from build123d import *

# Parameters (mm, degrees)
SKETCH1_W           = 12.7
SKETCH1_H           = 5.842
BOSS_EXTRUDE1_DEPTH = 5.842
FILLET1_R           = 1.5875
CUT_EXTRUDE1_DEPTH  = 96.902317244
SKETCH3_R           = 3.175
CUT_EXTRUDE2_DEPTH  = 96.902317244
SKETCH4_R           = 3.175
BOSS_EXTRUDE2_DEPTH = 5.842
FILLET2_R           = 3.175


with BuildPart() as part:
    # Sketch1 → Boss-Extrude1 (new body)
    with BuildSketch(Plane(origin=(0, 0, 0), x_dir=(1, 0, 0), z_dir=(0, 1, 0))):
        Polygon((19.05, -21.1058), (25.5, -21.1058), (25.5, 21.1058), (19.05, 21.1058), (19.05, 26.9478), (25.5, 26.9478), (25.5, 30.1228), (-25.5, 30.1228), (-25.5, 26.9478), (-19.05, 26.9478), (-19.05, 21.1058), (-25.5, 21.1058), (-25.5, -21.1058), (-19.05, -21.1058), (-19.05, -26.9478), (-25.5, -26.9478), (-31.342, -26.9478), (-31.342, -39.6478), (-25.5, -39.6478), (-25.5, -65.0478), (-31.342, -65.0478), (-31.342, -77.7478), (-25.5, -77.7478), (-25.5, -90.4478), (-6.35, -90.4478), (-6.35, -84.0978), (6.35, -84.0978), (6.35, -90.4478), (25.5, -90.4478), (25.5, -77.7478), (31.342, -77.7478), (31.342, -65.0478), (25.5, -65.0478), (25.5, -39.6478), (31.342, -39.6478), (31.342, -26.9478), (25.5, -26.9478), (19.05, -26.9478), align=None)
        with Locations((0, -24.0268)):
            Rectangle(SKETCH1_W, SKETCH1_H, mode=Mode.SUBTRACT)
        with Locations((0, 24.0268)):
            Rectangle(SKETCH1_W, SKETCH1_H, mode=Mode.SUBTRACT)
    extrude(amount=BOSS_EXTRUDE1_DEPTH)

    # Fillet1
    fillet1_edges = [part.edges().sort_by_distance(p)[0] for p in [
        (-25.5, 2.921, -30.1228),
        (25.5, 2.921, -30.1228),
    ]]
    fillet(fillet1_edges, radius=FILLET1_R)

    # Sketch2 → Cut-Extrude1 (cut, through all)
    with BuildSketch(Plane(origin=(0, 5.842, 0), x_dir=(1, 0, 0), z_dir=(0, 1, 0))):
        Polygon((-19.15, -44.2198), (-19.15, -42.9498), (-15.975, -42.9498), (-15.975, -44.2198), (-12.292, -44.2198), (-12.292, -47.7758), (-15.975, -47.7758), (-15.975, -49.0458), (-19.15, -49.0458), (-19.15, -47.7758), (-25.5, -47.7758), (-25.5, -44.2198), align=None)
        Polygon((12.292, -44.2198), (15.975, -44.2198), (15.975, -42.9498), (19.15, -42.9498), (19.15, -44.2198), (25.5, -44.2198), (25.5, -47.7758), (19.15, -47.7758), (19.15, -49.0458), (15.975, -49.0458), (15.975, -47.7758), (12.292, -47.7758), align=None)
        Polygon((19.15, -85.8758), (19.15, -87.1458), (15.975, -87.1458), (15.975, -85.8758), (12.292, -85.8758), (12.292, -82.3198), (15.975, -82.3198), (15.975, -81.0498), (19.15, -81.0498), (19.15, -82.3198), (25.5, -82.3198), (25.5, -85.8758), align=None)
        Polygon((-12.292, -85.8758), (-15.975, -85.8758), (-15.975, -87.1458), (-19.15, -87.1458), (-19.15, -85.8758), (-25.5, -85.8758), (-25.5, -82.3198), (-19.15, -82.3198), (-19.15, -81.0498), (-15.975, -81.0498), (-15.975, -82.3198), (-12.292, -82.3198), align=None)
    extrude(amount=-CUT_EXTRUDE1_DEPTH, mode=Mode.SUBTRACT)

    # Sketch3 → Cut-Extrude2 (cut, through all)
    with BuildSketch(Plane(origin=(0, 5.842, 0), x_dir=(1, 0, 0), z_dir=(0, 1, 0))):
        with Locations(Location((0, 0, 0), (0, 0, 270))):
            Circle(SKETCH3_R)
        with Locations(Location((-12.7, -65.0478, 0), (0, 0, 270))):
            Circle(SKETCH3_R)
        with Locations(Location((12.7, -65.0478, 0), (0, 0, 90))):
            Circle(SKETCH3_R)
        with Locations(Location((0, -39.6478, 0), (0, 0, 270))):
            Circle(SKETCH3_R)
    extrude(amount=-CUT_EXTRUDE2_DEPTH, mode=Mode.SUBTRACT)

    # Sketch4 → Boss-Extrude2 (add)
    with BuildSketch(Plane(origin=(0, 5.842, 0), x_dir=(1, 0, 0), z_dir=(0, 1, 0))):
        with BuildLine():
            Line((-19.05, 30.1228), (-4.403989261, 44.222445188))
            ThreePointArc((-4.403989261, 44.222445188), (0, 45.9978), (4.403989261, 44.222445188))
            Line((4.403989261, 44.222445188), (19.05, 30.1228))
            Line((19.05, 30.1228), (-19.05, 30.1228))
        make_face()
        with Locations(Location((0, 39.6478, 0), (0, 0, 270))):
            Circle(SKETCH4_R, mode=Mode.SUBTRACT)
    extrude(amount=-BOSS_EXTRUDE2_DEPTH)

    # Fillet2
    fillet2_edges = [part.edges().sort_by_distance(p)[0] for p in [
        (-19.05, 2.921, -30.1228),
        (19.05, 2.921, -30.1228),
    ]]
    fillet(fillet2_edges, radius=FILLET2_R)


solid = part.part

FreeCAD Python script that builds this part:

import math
import FreeCAD as App
import Part
import Sketcher
from FreeCAD import Vector
Q = App.Units.Quantity


def edges_at(feature, points):
    """Names of the edges that pass closest to the given points."""
    edges = feature.Shape.Edges
    near = lambda p: min(range(len(edges)), key=lambda i: edges[i].distToShape(Part.Vertex(*p))[0])
    return sorted({f"Edge{near(p) + 1}" for p in points})


def add_polygon(sketch, points):
    """Adds a closed chain of lines whose ends are joined by coincident constraints."""
    first, n = sketch.GeometryCount, len(points)
    for a, b in zip(points, points[1:] + points[:1]):
        sketch.addGeometry(Part.LineSegment(App.Vector(*a, 0), App.Vector(*b, 0)), False)
    for i in range(n):
        sketch.addConstraint(Sketcher.Constraint("Coincident", first + i, 2, first + (i + 1) % n, 1))

doc = App.newDocument("Part")
params = doc.addObject("Spreadsheet::Sheet", "Params")
for row, (alias, value) in enumerate([
    ("sketch1_height", "1 in"),
    ("sketch1_width", "0.5 in"),
    ("sketch1_width2", "0.23 in"),
    ("sketch1_height2", "0.25 in"),
    ("sketch1_height3", "0.125 in"),
    ("pad1_length", "0.23 in"),
    ("fillet_radius", "0.0625 in"),
    ("sketch2_width", "0.25 in"),
    ("sketch2_height", "0.05 in"),
    ("sketch2_height2", "0.14 in"),
    ("sketch2_width2", "0.125 in"),
    ("sketch2_width3", "0.145 in"),
    ("sketch3_diameter", "0.25 in"),
    ("sketch4_diameter", "0.25 in"),
    ("sketch4_radius", "0.25 in"),
    ("sketch4_width", "1.5 in"),
    ("pad2_length", "0.23 in"),
    ("fillet2_radius", "0.125 in"),
], start=1):
    params.set(f"A{row}", alias)
    params.set(f"B{row}", "=" + value)
    params.setAlias(f"B{row}", alias)

body = doc.addObject("PartDesign::Body", "Body")

# Sketch on XZ plane
sketch1 = doc.addObject("Sketcher::SketchObject", "Sketch")
body.addObject(sketch1)
sketch1.AttachmentSupport = (doc.XZ_Plane, [""])
sketch1.MapMode = "FlatFace"
add_polygon(sketch1, [(19.1, 21.1), (25.5, 21.1), (25.5, -21.1), (19.1, -21.1), (19.1, -26.9), (25.5, -26.9), (25.5, -30.1), (-25.5, -30.1), (-25.5, -26.9), (-19.1, -26.9), (-19.1, -21.1), (-25.5, -21.1), (-25.5, 21.1), (-19.1, 21.1), (-19.1, 26.9), (-31.3, 26.9), (-31.3, 39.6), (-25.5, 39.6), (-25.5, 65), (-31.3, 65), (-31.3, 77.7), (-25.5, 77.7), (-25.5, 90.4), (-6.3, 90.4), (-6.3, 84.1), (6.3, 84.1), (6.3, 90.4), (25.5, 90.4), (25.5, 77.7), (31.3, 77.7), (31.3, 65), (25.5, 65), (25.5, 39.6), (31.3, 39.6), (31.3, 26.9), (19.1, 26.9)])  # lines 0-35
add_polygon(sketch1, [(6.3, 26.9), (-6.3, 26.9), (-6.3, 21.1), (6.3, 21.1)])  # lines 36-39
add_polygon(sketch1, [(6.3, -21.1), (-6.3, -21.1), (-6.3, -26.9), (6.3, -26.9)])  # lines 40-43
sketch1.addConstraint([
    Sketcher.Constraint("Horizontal", 0),
    Sketcher.Constraint("Vertical", 1),
    Sketcher.Constraint("Horizontal", 2),
    Sketcher.Constraint("Vertical", 3),
    Sketcher.Constraint("Horizontal", 4),
    Sketcher.Constraint("Vertical", 5),
    Sketcher.Constraint("Horizontal", 6),
    Sketcher.Constraint("Vertical", 7),
    Sketcher.Constraint("Horizontal", 8),
    Sketcher.Constraint("Vertical", 9),
    Sketcher.Constraint("Horizontal", 10),
    Sketcher.Constraint("Vertical", 11),
    Sketcher.Constraint("Horizontal", 12),
    Sketcher.Constraint("Vertical", 13),
    Sketcher.Constraint("Horizontal", 14),
    Sketcher.Constraint("Vertical", 15),
    Sketcher.Constraint("Horizontal", 16),
    Sketcher.Constraint("Vertical", 17),
    Sketcher.Constraint("Horizontal", 18),
    Sketcher.Constraint("Vertical", 19),
    Sketcher.Constraint("Horizontal", 20),
    Sketcher.Constraint("Vertical", 21),
    Sketcher.Constraint("Horizontal", 22),
    Sketcher.Constraint("Vertical", 23),
    Sketcher.Constraint("Horizontal", 24),
    Sketcher.Constraint("Vertical", 25),
    Sketcher.Constraint("Horizontal", 26),
    Sketcher.Constraint("Vertical", 27),
    Sketcher.Constraint("Horizontal", 28),
    Sketcher.Constraint("Vertical", 29),
    Sketcher.Constraint("Horizontal", 30),
    Sketcher.Constraint("Vertical", 31),
    Sketcher.Constraint("Horizontal", 32),
    Sketcher.Constraint("Vertical", 33),
    Sketcher.Constraint("Horizontal", 34),
    Sketcher.Constraint("Vertical", 35),
    Sketcher.Constraint("Horizontal", 36),
    Sketcher.Constraint("Vertical", 37),
    Sketcher.Constraint("Horizontal", 38),
    Sketcher.Constraint("Vertical", 39),
    Sketcher.Constraint("Horizontal", 40),
    Sketcher.Constraint("Vertical", 41),
    Sketcher.Constraint("Horizontal", 42),
    Sketcher.Constraint("Vertical", 43),
    Sketcher.Constraint("Symmetric", 0, 2, 10, 2, -1, 1),
    Sketcher.Constraint("Symmetric", 2, 2, 12, 2, -1, 1),
    Sketcher.Constraint("Symmetric", 8, 2, 34, 2, -1, 1),
    Sketcher.Constraint("Symmetric", 38, 2, 40, 2, -1, 1),
    Sketcher.Constraint("Symmetric", 36, 2, 42, 2, -1, 1),
    Sketcher.Constraint("Symmetric", 4, 2, 7, 2, -2),
    Sketcher.Constraint("Symmetric", 2, 2, 9, 2, -2),
    Sketcher.Constraint("Symmetric", 22, 2, 25, 2, -2),
    Sketcher.Constraint("Symmetric", 20, 2, 27, 2, -2),
    Sketcher.Constraint("Symmetric", 18, 2, 29, 2, -2),
    Sketcher.Constraint("Symmetric", 16, 2, 31, 2, -2),
    Sketcher.Constraint("Symmetric", 14, 2, 33, 2, -2),
    Sketcher.Constraint("Horizontal", 34, 2, 36, 2),
    Sketcher.Constraint("Horizontal", 35, 2, 37, 2),
    Sketcher.Constraint("Vertical", 1, 2, 4, 2),
    Sketcher.Constraint("Vertical", 11, 2, 16, 2),
    Sketcher.Constraint("Vertical", 15, 2, 18, 2),
    Sketcher.Constraint("Vertical", 17, 2, 20, 2),
    Sketcher.Constraint("Vertical", 23, 2, 36, 2),
    Sketcher.Constraint("Vertical", 25, 2, 38, 2),
    Sketcher.Constraint("Equal", 32, 3),
    Sketcher.Constraint("Equal", 42, 15),
    Sketcher.Constraint("Equal", 15, 19),
    Sketcher.Constraint("Equal", 19, 21),
    Sketcher.Constraint("DistanceY", 17, 1, 17, 2, Q("1 in")),
    Sketcher.Constraint("DistanceX", 24, 1, 24, 2, Q("0.5 in")),
    Sketcher.Constraint("DistanceX", 37, 2, 35, 2, Q("1 in")),
    Sketcher.Constraint("DistanceX", 16, 1, 16, 2, Q("0.23 in")),
    Sketcher.Constraint("DistanceY", 23, 2, 23, 1, Q("0.25 in")),
    Sketcher.Constraint("DistanceY", 5, 2, 5, 1, Q("0.125 in")),
    Sketcher.Constraint("DistanceX", 0, 1, 0, 2, Q("6.45 mm")),
    Sketcher.Constraint("DistanceY", 1, 2, 1, 1, Q("42.2116 mm")),
])
sketch1.setExpression("Constraints[112]", "Params.sketch1_height")
sketch1.setExpression("Constraints[113]", "Params.sketch1_width")
sketch1.setExpression("Constraints[115]", "Params.sketch1_width2")
sketch1.setExpression("Constraints[116]", "Params.sketch1_height2")
sketch1.setExpression("Constraints[117]", "Params.sketch1_height3")
pad1 = doc.addObject("PartDesign::Pad", "Pad")
body.addObject(pad1)
pad1.Profile = sketch1
pad1.setExpression("Length", "Params.pad1_length")
pad1.Reversed = True
doc.recompute()

fillet = doc.addObject("PartDesign::Fillet", "Fillet")
body.addObject(fillet)
fillet.Base = (pad1, edges_at(pad1, [(-25.5, 2.921, -30.123), (25.5, 2.921, -30.123)]))
fillet.setExpression("Radius", "Params.fillet_radius")

# Sketch on XZ plane
sketch2 = doc.addObject("Sketcher::SketchObject", "Sketch001")
body.addObject(sketch2)
sketch2.AttachmentSupport = (doc.XZ_Plane, [""])
sketch2.MapMode = "FlatFace"
sketch2.AttachmentOffset = App.Placement(Vector(0, 0, -0.23 * 25.4), App.Rotation())
add_polygon(sketch2, [(-19.1, 42.9), (-19.1, 44.2), (-25.5, 44.2), (-25.5, 47.8), (-19.1, 47.8), (-19.1, 49), (-16, 49), (-16, 47.8), (-12.3, 47.8), (-12.3, 44.2), (-16, 44.2), (-16, 42.9)])  # lines 0-11
add_polygon(sketch2, [(16, 44.2), (12.3, 44.2), (12.3, 47.8), (16, 47.8), (16, 49), (19.1, 49), (19.1, 47.8), (25.5, 47.8), (25.5, 44.2), (19.1, 44.2), (19.1, 42.9), (16, 42.9)])  # lines 12-23
add_polygon(sketch2, [(19.1, 87.1), (19.1, 85.9), (25.5, 85.9), (25.5, 82.3), (19.1, 82.3), (19.1, 81), (16, 81), (16, 82.3), (12.3, 82.3), (12.3, 85.9), (16, 85.9), (16, 87.1)])  # lines 24-35
add_polygon(sketch2, [(-16, 85.9), (-12.3, 85.9), (-12.3, 82.3), (-16, 82.3), (-16, 81), (-19.1, 81), (-19.1, 82.3), (-25.5, 82.3), (-25.5, 85.9), (-19.1, 85.9), (-19.1, 87.1), (-16, 87.1)])  # lines 36-47
sketch2.addConstraint([
    Sketcher.Constraint("Vertical", 0),
    Sketcher.Constraint("Horizontal", 1),
    Sketcher.Constraint("Vertical", 2),
    Sketcher.Constraint("Horizontal", 3),
    Sketcher.Constraint("Vertical", 4),
    Sketcher.Constraint("Horizontal", 5),
    Sketcher.Constraint("Vertical", 6),
    Sketcher.Constraint("Horizontal", 7),
    Sketcher.Constraint("Vertical", 8),
    Sketcher.Constraint("Horizontal", 9),
    Sketcher.Constraint("Vertical", 10),
    Sketcher.Constraint("Horizontal", 11),
    Sketcher.Constraint("Horizontal", 12),
    Sketcher.Constraint("Vertical", 13),
    Sketcher.Constraint("Horizontal", 14),
    Sketcher.Constraint("Vertical", 15),
    Sketcher.Constraint("Horizontal", 16),
    Sketcher.Constraint("Vertical", 17),
    Sketcher.Constraint("Horizontal", 18),
    Sketcher.Constraint("Vertical", 19),
    Sketcher.Constraint("Horizontal", 20),
    Sketcher.Constraint("Vertical", 21),
    Sketcher.Constraint("Horizontal", 22),
    Sketcher.Constraint("Vertical", 23),
    Sketcher.Constraint("Vertical", 24),
    Sketcher.Constraint("Horizontal", 25),
    Sketcher.Constraint("Vertical", 26),
    Sketcher.Constraint("Horizontal", 27),
    Sketcher.Constraint("Vertical", 28),
    Sketcher.Constraint("Horizontal", 29),
    Sketcher.Constraint("Vertical", 30),
    Sketcher.Constraint("Horizontal", 31),
    Sketcher.Constraint("Vertical", 32),
    Sketcher.Constraint("Horizontal", 33),
    Sketcher.Constraint("Vertical", 34),
    Sketcher.Constraint("Horizontal", 35),
    Sketcher.Constraint("Horizontal", 36),
    Sketcher.Constraint("Vertical", 37),
    Sketcher.Constraint("Horizontal", 38),
    Sketcher.Constraint("Vertical", 39),
    Sketcher.Constraint("Horizontal", 40),
    Sketcher.Constraint("Vertical", 41),
    Sketcher.Constraint("Horizontal", 42),
    Sketcher.Constraint("Vertical", 43),
    Sketcher.Constraint("Horizontal", 44),
    Sketcher.Constraint("Vertical", 45),
    Sketcher.Constraint("Horizontal", 46),
    Sketcher.Constraint("Vertical", 47),
    Sketcher.Constraint("Symmetric", 8, 2, 12, 2, -2),
    Sketcher.Constraint("Symmetric", 6, 2, 14, 2, -2),
    Sketcher.Constraint("Symmetric", 4, 2, 16, 2, -2),
    Sketcher.Constraint("Symmetric", 2, 2, 18, 2, -2),
    Sketcher.Constraint("Symmetric", 0, 2, 20, 2, -2),
    Sketcher.Constraint("Symmetric", 10, 2, 22, 2, -2),
    Sketcher.Constraint("Symmetric", 32, 2, 36, 2, -2),
    Sketcher.Constraint("Symmetric", 30, 2, 38, 2, -2),
    Sketcher.Constraint("Symmetric", 28, 2, 40, 2, -2),
    Sketcher.Constraint("Symmetric", 26, 2, 42, 2, -2),
    Sketcher.Constraint("Symmetric", 24, 2, 44, 2, -2),
    Sketcher.Constraint("Symmetric", 34, 2, 46, 2, -2),
    Sketcher.Constraint("Horizontal", 3, 2, 6, 2),
    Sketcher.Constraint("Horizontal", 1, 2, 8, 2),
    Sketcher.Constraint("Horizontal", 27, 2, 30, 2),
    Sketcher.Constraint("Horizontal", 25, 2, 32, 2),
    Sketcher.Constraint("Vertical", 0, 2, 3, 2),
    Sketcher.Constraint("Vertical", 6, 2, 9, 2),
    Sketcher.Constraint("Vertical", 21, 2, 24, 2),
    Sketcher.Constraint("Vertical", 19, 2, 25, 2),
    Sketcher.Constraint("Vertical", 24, 2, 27, 2),
    Sketcher.Constraint("Vertical", 23, 2, 29, 2),
    Sketcher.Constraint("Vertical", 13, 2, 31, 2),
    Sketcher.Constraint("Vertical", 30, 2, 33, 2),
    Sketcher.Constraint("Equal", 0, 4),
    Sketcher.Constraint("Equal", 23, 24),
    Sketcher.Constraint("Equal", 19, 26),
    Sketcher.Constraint("Equal", 24, 28),
    Sketcher.Constraint("DistanceX", 1, 2, 1, 1, Q("0.25 in")),
    Sketcher.Constraint("DistanceY", 0, 1, 0, 2, Q("0.05 in")),
    Sketcher.Constraint("DistanceY", 2, 1, 2, 2, Q("0.14 in")),
    Sketcher.Constraint("DistanceY", 17, 2, 24, 2, Q("1.5 in")),
    Sketcher.Constraint("DistanceX", 5, 1, 5, 2, Q("0.125 in")),
    Sketcher.Constraint("DistanceX", 7, 1, 7, 2, Q("0.145 in")),
    Sketcher.Constraint("DistanceX", 0, 2, -1, 1, Q("19.15 mm")),
    Sketcher.Constraint("DistanceY", -1, 1, 0, 2, Q("44.2198 mm")),
])
sketch2.setExpression("Constraints[124]", "Params.sketch2_width")
sketch2.setExpression("Constraints[125]", "Params.sketch2_height")
sketch2.setExpression("Constraints[126]", "Params.sketch2_height2")
sketch2.setExpression("Constraints[128]", "Params.sketch2_width2")
sketch2.setExpression("Constraints[129]", "Params.sketch2_width3")
pocket1 = doc.addObject("PartDesign::Pocket", "Pocket")
body.addObject(pocket1)
pocket1.Profile = sketch2
pocket1.Type = "ThroughAll"
pocket1.Reversed = True

# Sketch on XZ plane
sketch3 = doc.addObject("Sketcher::SketchObject", "Sketch002")
body.addObject(sketch3)
sketch3.AttachmentSupport = (doc.XZ_Plane, [""])
sketch3.MapMode = "FlatFace"
sketch3.AttachmentOffset = App.Placement(Vector(0, 0, -0.23 * 25.4), App.Rotation())
sketch3.addGeometry([
    Part.Circle(Vector(0, 0, 0), Vector(0, 0, 1), 3.2),
    Part.Circle(Vector(-12.7, 65, 0), Vector(0, 0, 1), 3.2),
    Part.Circle(Vector(12.7, 65, 0), Vector(0, 0, 1), 3.2),
    Part.Circle(Vector(0, 39.6, 0), Vector(0, 0, 1), 3.2),
], False)
sketch3.addConstraint([
    Sketcher.Constraint("Coincident", 0, 3, -1, 1),
    Sketcher.Constraint("Equal", 0, 1),
    Sketcher.Constraint("Equal", 1, 2),
    Sketcher.Constraint("Equal", 2, 3),
    Sketcher.Constraint("Symmetric", 1, 3, 2, 3, -2),
    Sketcher.Constraint("PointOnObject", 3, 3, -2),
    Sketcher.Constraint("Diameter", 0, Q("0.25 in")),
    Sketcher.Constraint("DistanceX", 1, 3, 2, 3, Q("1 in")),
    Sketcher.Constraint("DistanceY", 3, 3, 1, 3, Q("1 in")),
    Sketcher.Constraint("DistanceY", -1, 1, 1, 3, Q("65.0478 mm")),
])
sketch3.setExpression("Constraints[6]", "Params.sketch3_diameter")
pocket2 = doc.addObject("PartDesign::Pocket", "Pocket001")
body.addObject(pocket2)
pocket2.Profile = sketch3
pocket2.Type = "ThroughAll"
pocket2.Reversed = True

# Sketch on XZ plane
sketch4 = doc.addObject("Sketcher::SketchObject", "Sketch003")
body.addObject(sketch4)
sketch4.AttachmentSupport = (doc.XZ_Plane, [""])
sketch4.MapMode = "FlatFace"
sketch4.AttachmentOffset = App.Placement(Vector(0, 0, -0.23 * 25.4), App.Rotation())
sketch4.addGeometry([
    Part.LineSegment(Vector(-4.4, -44.2, 0), Vector(-19.1, -30.1, 0)),  # 0
    Part.LineSegment(Vector(-19.1, -30.1, 0), Vector(19.1, -30.1, 0)),  # 1
    Part.LineSegment(Vector(19.1, -30.1, 0), Vector(4.4, -44.2, 0)),  # 2
    Part.ArcOfCircle(Part.Circle(Vector(0, -39.6, 0), Vector(0, 0, 1), 6.4), math.radians(-134), math.radians(-46)),  # 3
    Part.Circle(Vector(0, -39.6, 0), Vector(0, 0, 1), 3.2),  # 4
], False)
sketch4.addConstraint([
    Sketcher.Constraint("Coincident", 0, 2, 1, 1),
    Sketcher.Constraint("Coincident", 1, 2, 2, 1),
    Sketcher.Constraint("Tangent", 2, 2, 3, 2),
    Sketcher.Constraint("Tangent", 3, 1, 0, 1),
    Sketcher.Constraint("Horizontal", 1),
    Sketcher.Constraint("Coincident", 4, 3, 3, 3),
    Sketcher.Constraint("Symmetric", 2, 2, 3, 1, -2),
    Sketcher.Constraint("Diameter", 4, Q("0.25 in")),
    Sketcher.Constraint("Radius", 3, Q("0.25 in")),
    Sketcher.Constraint("DistanceX", 1, 1, 1, 2, Q("1.5 in")),
    Sketcher.Constraint("DistanceY", 3, 3, 0, 2, Q("0.375 in")),
    Sketcher.Constraint("DistanceY", 3, 3, -1, 1, Q("39.6478 mm")),
])
sketch4.setExpression("Constraints[7]", "Params.sketch4_diameter")
sketch4.setExpression("Constraints[8]", "Params.sketch4_radius")
sketch4.setExpression("Constraints[9]", "Params.sketch4_width")
pad2 = doc.addObject("PartDesign::Pad", "Pad001")
body.addObject(pad2)
pad2.Profile = sketch4
pad2.setExpression("Length", "Params.pad2_length")
doc.recompute()

fillet2 = doc.addObject("PartDesign::Fillet", "Fillet001")
body.addObject(fillet2)
fillet2.Base = (pad2, edges_at(pad2, [(-19.05, 2.921, -30.123), (19.05, 2.921, -30.123)]))
fillet2.setExpression("Radius", "Params.fillet2_radius")

doc.recompute()
